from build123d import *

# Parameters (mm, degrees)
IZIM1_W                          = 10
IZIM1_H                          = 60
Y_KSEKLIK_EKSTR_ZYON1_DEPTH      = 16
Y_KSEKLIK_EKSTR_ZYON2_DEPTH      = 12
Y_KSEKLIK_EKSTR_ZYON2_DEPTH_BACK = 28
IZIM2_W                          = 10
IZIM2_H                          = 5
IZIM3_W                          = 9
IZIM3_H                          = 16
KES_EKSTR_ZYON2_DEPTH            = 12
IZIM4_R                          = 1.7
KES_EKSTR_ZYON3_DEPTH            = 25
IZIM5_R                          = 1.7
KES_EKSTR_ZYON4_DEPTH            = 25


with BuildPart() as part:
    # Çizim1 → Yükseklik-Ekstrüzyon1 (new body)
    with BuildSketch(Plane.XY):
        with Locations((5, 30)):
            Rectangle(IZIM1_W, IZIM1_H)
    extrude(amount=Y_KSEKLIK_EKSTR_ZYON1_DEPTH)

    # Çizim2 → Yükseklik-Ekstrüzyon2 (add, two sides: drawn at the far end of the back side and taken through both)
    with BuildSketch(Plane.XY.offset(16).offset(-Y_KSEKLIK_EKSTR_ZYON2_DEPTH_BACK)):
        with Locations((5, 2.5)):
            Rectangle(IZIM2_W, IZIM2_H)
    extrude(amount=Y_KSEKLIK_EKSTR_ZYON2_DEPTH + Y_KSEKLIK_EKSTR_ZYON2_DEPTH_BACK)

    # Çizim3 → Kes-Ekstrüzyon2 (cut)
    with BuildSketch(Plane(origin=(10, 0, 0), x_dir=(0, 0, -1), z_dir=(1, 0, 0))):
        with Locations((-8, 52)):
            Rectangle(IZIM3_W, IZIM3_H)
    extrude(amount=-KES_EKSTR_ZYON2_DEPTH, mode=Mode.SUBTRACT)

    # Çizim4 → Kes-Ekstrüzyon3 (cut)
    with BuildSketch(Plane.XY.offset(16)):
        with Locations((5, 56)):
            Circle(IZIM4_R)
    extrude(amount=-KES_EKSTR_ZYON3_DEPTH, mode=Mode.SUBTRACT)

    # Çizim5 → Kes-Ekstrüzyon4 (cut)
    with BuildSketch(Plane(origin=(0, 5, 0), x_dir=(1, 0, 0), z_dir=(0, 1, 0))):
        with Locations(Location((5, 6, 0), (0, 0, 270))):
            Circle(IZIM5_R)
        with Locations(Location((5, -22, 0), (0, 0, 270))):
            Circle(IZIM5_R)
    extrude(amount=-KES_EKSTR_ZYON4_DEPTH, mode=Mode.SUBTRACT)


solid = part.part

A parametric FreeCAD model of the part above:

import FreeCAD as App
import Part
import Sketcher
from FreeCAD import Vector
Q = App.Units.Quantity

doc = App.newDocument("Part")
params = doc.addObject("Spreadsheet::Sheet", "Params")
for row, (alias, value) in enumerate([
    ("sketch1_width", "10 mm"),
    ("sketch1_height", "60 mm"),
    ("pad1_length", "16 mm"),
    ("sketch2_width", "10 mm"),
    ("sketch2_height", "5 mm"),
    ("pad2_length", "12 mm"),
    ("pad2_length2", "28 mm"),
    ("sketch3_width", "16 mm"),
    ("sketch3_height", "9 mm"),
    ("pocket1_length", "12 mm"),
    ("sketch4_diameter", "3.4 mm"),
    ("pocket2_length", "25 mm"),
    ("sketch5_diameter", "3.4 mm"),
    ("pocket3_length", "25 mm"),
], start=1):
    params.set(f"A{row}", alias)
    params.set(f"B{row}", "=" + value)
    params.setAlias(f"B{row}", alias)

body = doc.addObject("PartDesign::Body", "Body")

# Sketch on XY plane
sketch1 = body.newObject("Sketcher::SketchObject", "Sketch")
sketch1.AttachmentSupport = (doc.getObject("XY_Plane"), [""])
sketch1.MapMode = "FlatFace"
sketch1.addGeometry(Part.LineSegment(Vector(0, 60, 0), Vector(0, 0, 0)), False)
sketch1.addGeometry(Part.LineSegment(Vector(0, 0, 0), Vector(10, 0, 0)), False)
sketch1.addGeometry(Part.LineSegment(Vector(10, 0, 0), Vector(10, 60, 0)), False)
sketch1.addGeometry(Part.LineSegment(Vector(10, 60, 0), Vector(0, 60, 0)), False)
sketch1.addConstraint(Sketcher.Constraint("Coincident", 0, 2, 1, 1))
sketch1.addConstraint(Sketcher.Constraint("Coincident", 1, 2, 2, 1))
sketch1.addConstraint(Sketcher.Constraint("Coincident", 2, 2, 3, 1))
sketch1.addConstraint(Sketcher.Constraint("Coincident", 3, 2, 0, 1))
sketch1.addConstraint(Sketcher.Constraint("Vertical", 0))
sketch1.addConstraint(Sketcher.Constraint("Horizontal", 1))
sketch1.addConstraint(Sketcher.Constraint("Vertical", 2))
sketch1.addConstraint(Sketcher.Constraint("Horizontal", 3))
sketch1.addConstraint(Sketcher.Constraint("Coincident", 0, 2, -1, 1))
sketch1.addConstraint(Sketcher.Constraint("DistanceX", 1, 1, 1, 2, Q("10 mm")))
sketch1.addConstraint(Sketcher.Constraint("DistanceY", 0, 2, 0, 1, Q("60 mm")))
sketch1.setExpression("Constraints[9]", "Params.sketch1_width")
sketch1.setExpression("Constraints[10]", "Params.sketch1_height")
pad1 = body.newObject("PartDesign::Pad", "Pad")
pad1.Profile = sketch1
pad1.setExpression("Length", "Params.pad1_length")

# Sketch on XY plane
sketch2 = body.newObject("Sketcher::SketchObject", "Sketch001")
sketch2.AttachmentSupport = (doc.getObject("XY_Plane"), [""])
sketch2.MapMode = "FlatFace"
sketch2.AttachmentOffset = App.Placement(Vector(0, 0, 16), App.Rotation())
sketch2.addGeometry(Part.LineSegment(Vector(0, 5, 0), Vector(0, 0, 0)), False)
sketch2.addGeometry(Part.LineSegment(Vector(0, 0, 0), Vector(10, 0, 0)), False)
sketch2.addGeometry(Part.LineSegment(Vector(10, 0, 0), Vector(10, 5, 0)), False)
sketch2.addGeometry(Part.LineSegment(Vector(10, 5, 0), Vector(0, 5, 0)), False)
sketch2.addConstraint(Sketcher.Constraint("Coincident", 0, 2, 1, 1))
sketch2.addConstraint(Sketcher.Constraint("Coincident", 1, 2, 2, 1))
sketch2.addConstraint(Sketcher.Constraint("Coincident", 2, 2, 3, 1))
sketch2.addConstraint(Sketcher.Constraint("Coincident", 3, 2, 0, 1))
sketch2.addConstraint(Sketcher.Constraint("Vertical", 0))
sketch2.addConstraint(Sketcher.Constraint("Horizontal", 1))
sketch2.addConstraint(Sketcher.Constraint("Vertical", 2))
sketch2.addConstraint(Sketcher.Constraint("Horizontal", 3))
sketch2.addConstraint(Sketcher.Constraint("Coincident", 0, 2, -1, 1))
sketch2.addConstraint(Sketcher.Constraint("DistanceX", 1, 1, 1, 2, Q("10 mm")))
sketch2.addConstraint(Sketcher.Constraint("DistanceY", 0, 2, 0, 1, Q("5 mm")))
sketch2.setExpression("Constraints[9]", "Params.sketch2_width")
sketch2.setExpression("Constraints[10]", "Params.sketch2_height")
pad2 = body.newObject("PartDesign::Pad", "Pad001")
pad2.Profile = sketch2
pad2.Type = "TwoLengths"
pad2.setExpression("Length", "Params.pad2_length")
pad2.setExpression("Length2", "Params.pad2_length2")

# Sketch on YZ plane
sketch3 = body.newObject("Sketcher::SketchObject", "Sketch002")
sketch3.AttachmentSupport = (doc.getObject("YZ_Plane"), [""])
sketch3.MapMode = "FlatFace"
sketch3.AttachmentOffset = App.Placement(Vector(0, 0, 10), App.Rotation())
sketch3.addGeometry(Part.LineSegment(Vector(60, 12, 0), Vector(44, 12, 0)), False)
sketch3.addGeometry(Part.LineSegment(Vector(44, 12, 0), Vector(44, 4, 0)), False)
sketch3.addGeometry(Part.LineSegment(Vector(44, 4, 0), Vector(60, 4, 0)), False)
sketch3.addGeometry(Part.LineSegment(Vector(60, 4, 0), Vector(60, 12, 0)), False)
sketch3.addConstraint(Sketcher.Constraint("Coincident", 0, 2, 1, 1))
sketch3.addConstraint(Sketcher.Constraint("Coincident", 1, 2, 2, 1))
sketch3.addConstraint(Sketcher.Constraint("Coincident", 2, 2, 3, 1))
sketch3.addConstraint(Sketcher.Constraint("Coincident", 3, 2, 0, 1))
sketch3.addConstraint(Sketcher.Constraint("Horizontal", 0))
sketch3.addConstraint(Sketcher.Constraint("Vertical", 1))
sketch3.addConstraint(Sketcher.Constraint("Horizontal", 2))
sketch3.addConstraint(Sketcher.Constraint("Vertical", 3))
sketch3.addConstraint(Sketcher.Constraint("DistanceX", 0, 2, 0, 1, Q("16 mm")))
sketch3.addConstraint(Sketcher.Constraint("DistanceY", 1, 2, 1, 1, Q("9 mm")))
sketch3.addConstraint(Sketcher.Constraint("DistanceX", -1, 1, 0, 2, Q("44 mm")))
sketch3.addConstraint(Sketcher.Constraint("DistanceY", -1, 1, 0, 2, Q("12.5 mm")))
sketch3.setExpression("Constraints[8]", "Params.sketch3_width")
sketch3.setExpression("Constraints[9]", "Params.sketch3_height")
pocket1 = body.newObject("PartDesign::Pocket", "Pocket")
pocket1.Profile = sketch3
pocket1.setExpression("Length", "Params.pocket1_length")

# Sketch on XY plane
sketch4 = body.newObject("Sketcher::SketchObject", "Sketch003")
sketch4.AttachmentSupport = (doc.getObject("XY_Plane"), [""])
sketch4.MapMode = "FlatFace"
sketch4.AttachmentOffset = App.Placement(Vector(0, 0, 16), App.Rotation())
sketch4.addGeometry(Part.Circle(Vector(5, 56, 0), Vector(0, 0, 1), 1.7), False)
sketch4.addConstraint(Sketcher.Constraint("Diameter", 0, Q("3.4 mm")))
sketch4.addConstraint(Sketcher.Constraint("DistanceX", -1, 1, 0, 3, Q("5 mm")))
sketch4.addConstraint(Sketcher.Constraint("DistanceY", -1, 1, 0, 3, Q("56 mm")))
sketch4.setExpression("Constraints[0]", "Params.sketch4_diameter")
pocket2 = body.newObject("PartDesign::Pocket", "Pocket001")
pocket2.Profile = sketch4
pocket2.setExpression("Length", "Params.pocket2_length")

# Sketch on XZ plane
sketch5 = body.newObject("Sketcher::SketchObject", "Sketch004")
sketch5.AttachmentSupport = (doc.getObject("XZ_Plane"), [""])
sketch5.MapMode = "FlatFace"
sketch5.AttachmentOffset = App.Placement(Vector(0, 0, -5), App.Rotation())
sketch5.addGeometry(Part.Circle(Vector(5, -6, 0), Vector(0, 0, 1), 1.7), False)
sketch5.addGeometry(Part.Circle(Vector(5, 22, 0), Vector(0, 0, 1), 1.7), False)
sketch5.addConstraint(Sketcher.Constraint("Equal", 0, 1))
sketch5.addConstraint(Sketcher.Constraint("Vertical", 0, 3, 1, 3))
sketch5.addConstraint(Sketcher.Constraint("Diameter", 0, Q("3.4 mm")))
sketch5.addConstraint(Sketcher.Constraint("DistanceX", -1, 1, 0, 3, Q("5 mm")))
sketch5.addConstraint(Sketcher.Constraint("DistanceY", 0, 3, -1, 1, Q("6 mm")))
sketch5.addConstraint(Sketcher.Constraint("DistanceY", -1, 1, 1, 3, Q("22 mm")))
sketch5.setExpression("Constraints[2]", "Params.sketch5_diameter")
pocket3 = body.newObject("PartDesign::Pocket", "Pocket002")
pocket3.Profile = sketch5
pocket3.setExpression("Length", "Params.pocket3_length")
pocket3.Reversed = True

doc.recompute()
